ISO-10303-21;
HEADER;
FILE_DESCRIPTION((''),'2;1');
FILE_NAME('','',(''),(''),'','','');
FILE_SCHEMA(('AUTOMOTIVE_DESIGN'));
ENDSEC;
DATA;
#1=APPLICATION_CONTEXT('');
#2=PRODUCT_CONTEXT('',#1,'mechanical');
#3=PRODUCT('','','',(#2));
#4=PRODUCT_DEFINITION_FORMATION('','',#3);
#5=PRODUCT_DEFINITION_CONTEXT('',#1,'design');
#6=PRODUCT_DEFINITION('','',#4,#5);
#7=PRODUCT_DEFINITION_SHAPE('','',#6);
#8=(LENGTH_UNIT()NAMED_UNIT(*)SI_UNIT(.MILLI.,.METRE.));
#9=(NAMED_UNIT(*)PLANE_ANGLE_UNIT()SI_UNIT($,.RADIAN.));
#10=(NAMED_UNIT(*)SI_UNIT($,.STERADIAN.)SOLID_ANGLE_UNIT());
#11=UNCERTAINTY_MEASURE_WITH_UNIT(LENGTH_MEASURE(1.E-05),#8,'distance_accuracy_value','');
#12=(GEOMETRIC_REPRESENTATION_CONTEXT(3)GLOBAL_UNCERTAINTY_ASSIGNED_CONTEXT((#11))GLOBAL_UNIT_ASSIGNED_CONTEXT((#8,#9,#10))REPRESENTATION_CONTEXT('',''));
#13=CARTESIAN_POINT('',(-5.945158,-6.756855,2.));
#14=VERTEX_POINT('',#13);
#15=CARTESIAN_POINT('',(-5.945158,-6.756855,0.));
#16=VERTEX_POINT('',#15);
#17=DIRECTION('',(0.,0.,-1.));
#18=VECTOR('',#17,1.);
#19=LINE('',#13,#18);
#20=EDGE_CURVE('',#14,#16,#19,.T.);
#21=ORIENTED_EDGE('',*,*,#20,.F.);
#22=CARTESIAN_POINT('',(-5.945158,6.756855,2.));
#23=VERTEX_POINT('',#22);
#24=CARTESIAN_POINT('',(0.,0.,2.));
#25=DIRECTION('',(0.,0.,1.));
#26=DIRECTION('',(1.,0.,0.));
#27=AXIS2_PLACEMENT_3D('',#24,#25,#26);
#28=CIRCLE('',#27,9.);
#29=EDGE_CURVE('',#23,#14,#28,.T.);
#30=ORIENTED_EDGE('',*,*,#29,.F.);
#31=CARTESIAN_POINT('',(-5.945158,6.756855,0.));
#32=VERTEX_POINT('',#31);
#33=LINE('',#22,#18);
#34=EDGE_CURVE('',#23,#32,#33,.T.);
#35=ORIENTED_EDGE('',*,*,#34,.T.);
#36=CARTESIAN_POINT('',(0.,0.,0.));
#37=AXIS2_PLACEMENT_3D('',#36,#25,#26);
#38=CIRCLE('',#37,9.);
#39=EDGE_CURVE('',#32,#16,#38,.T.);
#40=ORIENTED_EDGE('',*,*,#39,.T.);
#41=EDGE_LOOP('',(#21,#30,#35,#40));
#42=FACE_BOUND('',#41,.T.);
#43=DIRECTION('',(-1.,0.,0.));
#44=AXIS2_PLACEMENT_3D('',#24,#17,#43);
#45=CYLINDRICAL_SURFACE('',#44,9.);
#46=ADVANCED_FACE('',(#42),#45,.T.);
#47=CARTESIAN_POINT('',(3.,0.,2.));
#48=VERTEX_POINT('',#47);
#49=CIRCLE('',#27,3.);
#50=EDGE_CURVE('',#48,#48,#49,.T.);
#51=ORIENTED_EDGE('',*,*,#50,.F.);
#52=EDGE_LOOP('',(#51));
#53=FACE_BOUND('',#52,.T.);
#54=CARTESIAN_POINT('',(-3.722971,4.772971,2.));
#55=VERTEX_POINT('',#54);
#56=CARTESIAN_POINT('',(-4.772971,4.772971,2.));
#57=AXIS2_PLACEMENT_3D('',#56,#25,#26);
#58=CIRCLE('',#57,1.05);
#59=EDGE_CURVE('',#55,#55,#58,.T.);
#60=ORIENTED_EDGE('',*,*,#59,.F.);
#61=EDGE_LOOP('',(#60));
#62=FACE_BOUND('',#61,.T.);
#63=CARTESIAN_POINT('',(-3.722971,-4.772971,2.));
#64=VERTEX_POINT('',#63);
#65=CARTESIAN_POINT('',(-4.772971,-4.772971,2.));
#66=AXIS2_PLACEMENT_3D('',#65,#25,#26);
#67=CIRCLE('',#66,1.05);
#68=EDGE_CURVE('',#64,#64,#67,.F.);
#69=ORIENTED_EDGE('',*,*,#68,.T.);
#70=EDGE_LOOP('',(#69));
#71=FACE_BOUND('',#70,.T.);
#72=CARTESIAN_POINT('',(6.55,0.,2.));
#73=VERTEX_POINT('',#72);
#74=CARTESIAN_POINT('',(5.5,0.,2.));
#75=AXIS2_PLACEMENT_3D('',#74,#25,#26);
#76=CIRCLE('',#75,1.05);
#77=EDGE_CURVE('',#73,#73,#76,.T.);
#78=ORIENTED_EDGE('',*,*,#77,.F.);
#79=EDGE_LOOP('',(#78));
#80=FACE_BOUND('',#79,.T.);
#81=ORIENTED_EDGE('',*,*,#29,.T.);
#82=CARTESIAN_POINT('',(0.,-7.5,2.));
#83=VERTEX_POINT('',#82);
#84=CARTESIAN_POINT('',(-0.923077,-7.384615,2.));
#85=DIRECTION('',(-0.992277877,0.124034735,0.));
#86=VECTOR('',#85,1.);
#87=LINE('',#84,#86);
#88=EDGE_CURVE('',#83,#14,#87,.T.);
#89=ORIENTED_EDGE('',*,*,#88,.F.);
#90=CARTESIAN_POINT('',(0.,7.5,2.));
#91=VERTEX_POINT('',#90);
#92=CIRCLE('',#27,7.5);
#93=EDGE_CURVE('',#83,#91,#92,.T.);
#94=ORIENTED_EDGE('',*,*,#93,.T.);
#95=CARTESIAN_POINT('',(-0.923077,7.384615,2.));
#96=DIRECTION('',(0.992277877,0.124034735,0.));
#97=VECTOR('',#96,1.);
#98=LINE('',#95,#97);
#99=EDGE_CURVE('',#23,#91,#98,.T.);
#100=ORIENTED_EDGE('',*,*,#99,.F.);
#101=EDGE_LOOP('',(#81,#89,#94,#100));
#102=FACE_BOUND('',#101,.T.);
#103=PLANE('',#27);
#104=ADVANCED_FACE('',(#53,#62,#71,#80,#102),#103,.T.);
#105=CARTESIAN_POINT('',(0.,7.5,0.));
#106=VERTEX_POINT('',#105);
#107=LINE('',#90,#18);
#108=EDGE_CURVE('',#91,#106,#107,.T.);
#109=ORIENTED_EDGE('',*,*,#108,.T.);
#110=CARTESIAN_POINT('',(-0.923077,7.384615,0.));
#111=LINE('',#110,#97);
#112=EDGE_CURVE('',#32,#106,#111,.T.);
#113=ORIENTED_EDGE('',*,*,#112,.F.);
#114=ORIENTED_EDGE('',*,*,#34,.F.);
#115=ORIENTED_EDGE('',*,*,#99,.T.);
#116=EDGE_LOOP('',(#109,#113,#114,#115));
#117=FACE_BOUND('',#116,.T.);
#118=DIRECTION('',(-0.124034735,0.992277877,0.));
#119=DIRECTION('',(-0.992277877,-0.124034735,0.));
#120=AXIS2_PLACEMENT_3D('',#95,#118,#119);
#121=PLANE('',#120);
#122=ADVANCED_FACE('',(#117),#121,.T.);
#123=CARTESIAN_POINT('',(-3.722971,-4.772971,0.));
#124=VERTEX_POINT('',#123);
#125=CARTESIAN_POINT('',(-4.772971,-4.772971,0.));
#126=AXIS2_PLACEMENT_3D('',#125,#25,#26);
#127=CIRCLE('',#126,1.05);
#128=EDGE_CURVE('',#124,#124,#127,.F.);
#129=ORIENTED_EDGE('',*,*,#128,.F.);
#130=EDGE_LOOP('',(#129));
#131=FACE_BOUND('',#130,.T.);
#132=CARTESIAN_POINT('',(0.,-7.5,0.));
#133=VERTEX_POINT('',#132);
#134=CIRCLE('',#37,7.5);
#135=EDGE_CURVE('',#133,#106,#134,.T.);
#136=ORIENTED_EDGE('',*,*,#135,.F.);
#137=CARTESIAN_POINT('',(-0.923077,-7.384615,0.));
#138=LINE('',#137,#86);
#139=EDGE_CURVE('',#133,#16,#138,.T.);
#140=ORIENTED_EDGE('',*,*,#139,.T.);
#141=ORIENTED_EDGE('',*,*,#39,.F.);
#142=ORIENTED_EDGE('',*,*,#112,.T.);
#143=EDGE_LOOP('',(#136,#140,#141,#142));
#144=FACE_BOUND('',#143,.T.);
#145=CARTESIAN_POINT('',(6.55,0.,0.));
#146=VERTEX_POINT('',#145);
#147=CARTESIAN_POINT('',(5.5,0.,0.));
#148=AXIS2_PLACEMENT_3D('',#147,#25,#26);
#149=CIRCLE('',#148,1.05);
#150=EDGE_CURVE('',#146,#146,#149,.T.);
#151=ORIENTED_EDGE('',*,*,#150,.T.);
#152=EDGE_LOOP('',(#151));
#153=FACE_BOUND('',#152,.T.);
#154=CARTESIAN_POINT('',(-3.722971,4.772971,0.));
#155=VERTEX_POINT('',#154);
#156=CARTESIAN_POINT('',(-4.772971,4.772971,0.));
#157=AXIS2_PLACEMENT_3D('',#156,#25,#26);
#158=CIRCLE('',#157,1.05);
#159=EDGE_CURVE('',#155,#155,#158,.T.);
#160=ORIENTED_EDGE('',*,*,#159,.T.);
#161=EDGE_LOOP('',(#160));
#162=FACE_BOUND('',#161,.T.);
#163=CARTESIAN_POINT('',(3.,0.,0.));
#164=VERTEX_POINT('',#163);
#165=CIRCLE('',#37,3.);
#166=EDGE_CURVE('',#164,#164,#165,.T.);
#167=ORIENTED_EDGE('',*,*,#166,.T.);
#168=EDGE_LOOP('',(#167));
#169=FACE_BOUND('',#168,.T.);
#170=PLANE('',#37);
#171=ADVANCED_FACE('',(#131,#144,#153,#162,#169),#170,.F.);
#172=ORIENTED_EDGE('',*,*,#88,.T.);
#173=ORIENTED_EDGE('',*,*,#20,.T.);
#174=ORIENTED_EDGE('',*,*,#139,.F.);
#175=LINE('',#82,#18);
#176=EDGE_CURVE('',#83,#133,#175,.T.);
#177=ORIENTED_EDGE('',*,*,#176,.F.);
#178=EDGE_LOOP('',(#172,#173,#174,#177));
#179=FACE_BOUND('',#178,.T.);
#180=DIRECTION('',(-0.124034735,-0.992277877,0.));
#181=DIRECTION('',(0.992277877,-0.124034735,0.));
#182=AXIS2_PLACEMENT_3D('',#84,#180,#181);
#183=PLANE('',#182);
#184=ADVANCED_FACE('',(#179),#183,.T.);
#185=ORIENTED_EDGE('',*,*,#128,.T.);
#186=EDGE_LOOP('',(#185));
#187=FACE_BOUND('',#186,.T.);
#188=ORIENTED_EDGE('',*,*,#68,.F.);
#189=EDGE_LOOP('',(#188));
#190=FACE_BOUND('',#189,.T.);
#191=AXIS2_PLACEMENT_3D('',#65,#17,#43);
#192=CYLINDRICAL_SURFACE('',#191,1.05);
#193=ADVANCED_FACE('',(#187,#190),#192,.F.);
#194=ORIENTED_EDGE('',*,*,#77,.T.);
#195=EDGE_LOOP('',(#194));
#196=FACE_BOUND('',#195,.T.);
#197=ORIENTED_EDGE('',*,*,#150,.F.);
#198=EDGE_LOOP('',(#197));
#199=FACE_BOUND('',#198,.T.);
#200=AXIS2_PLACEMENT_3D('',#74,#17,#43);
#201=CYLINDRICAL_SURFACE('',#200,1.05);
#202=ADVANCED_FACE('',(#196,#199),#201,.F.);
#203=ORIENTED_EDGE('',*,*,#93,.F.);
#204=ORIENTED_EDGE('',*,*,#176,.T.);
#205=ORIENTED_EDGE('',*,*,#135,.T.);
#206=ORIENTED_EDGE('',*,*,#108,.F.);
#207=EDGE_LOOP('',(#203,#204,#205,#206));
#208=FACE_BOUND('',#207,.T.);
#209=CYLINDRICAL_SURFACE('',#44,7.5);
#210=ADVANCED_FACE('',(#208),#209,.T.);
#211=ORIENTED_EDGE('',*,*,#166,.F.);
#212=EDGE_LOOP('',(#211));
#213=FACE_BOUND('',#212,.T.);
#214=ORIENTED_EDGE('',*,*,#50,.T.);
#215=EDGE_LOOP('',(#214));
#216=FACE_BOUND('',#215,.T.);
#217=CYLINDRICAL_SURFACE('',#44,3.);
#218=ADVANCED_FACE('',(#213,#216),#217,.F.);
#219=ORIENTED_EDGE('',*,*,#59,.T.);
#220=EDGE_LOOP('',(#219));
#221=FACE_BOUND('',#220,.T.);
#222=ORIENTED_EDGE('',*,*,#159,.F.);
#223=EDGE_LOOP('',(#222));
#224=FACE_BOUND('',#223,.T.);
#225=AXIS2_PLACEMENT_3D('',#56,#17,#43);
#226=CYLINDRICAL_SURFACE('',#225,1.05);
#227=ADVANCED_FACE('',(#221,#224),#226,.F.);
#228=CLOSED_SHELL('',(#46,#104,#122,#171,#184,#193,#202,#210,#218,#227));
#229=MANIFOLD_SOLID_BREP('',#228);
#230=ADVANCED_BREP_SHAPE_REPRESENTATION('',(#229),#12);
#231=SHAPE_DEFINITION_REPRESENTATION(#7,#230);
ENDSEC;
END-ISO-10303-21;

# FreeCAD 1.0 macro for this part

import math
import FreeCAD as App
import Part
import Sketcher

V = App.Vector

doc = App.newDocument("Part")
body = doc.addObject("PartDesign::Body", "Body")

sketch1 = body.newObject("Sketcher::SketchObject", "Sketch")
sketch1.AttachmentSupport = (doc.getObject("XY_Plane"), [""])
sketch1.MapMode = "FlatFace"
sketch1.addGeometry([
    Part.ArcOfCircle(Part.Circle(V(0, 0, 0), V(0, 0, 1), 9), math.radians(131.343599), math.radians(228.656401)),
    Part.LineSegment(V(-5.945158, -6.756855, 0), V(0, -7.5, 0)),
    Part.ArcOfCircle(Part.Circle(V(0, 0, 0), V(0, 0, 1), 7.5), math.radians(-90), math.radians(90)),
    Part.LineSegment(V(0, 7.5, 0), V(-5.945158, 6.756855, 0)),
    Part.Circle(V(-4.772971, -4.772971, 0), V(0, 0, 1), 1.05),
    Part.Circle(V(0, 0, 0), V(0, 0, 1), 3),
    Part.Circle(V(5.5, 0, 0), V(0, 0, 1), 1.05),
    Part.Circle(V(-4.772971, 4.772971, 0), V(0, 0, 1), 1.05),
], False)
sketch1.addConstraint([
    Sketcher.Constraint("Coincident", 0, 2, 1, 1),
    Sketcher.Constraint("Coincident", 1, 2, 2, 1),
    Sketcher.Constraint("Coincident", 2, 2, 3, 1),
    Sketcher.Constraint("Coincident", 3, 2, 0, 1),
    Sketcher.Constraint("Coincident", 0, 3, -1, 1),
    Sketcher.Constraint("Coincident", 2, 3, -1, 1),
    Sketcher.Constraint("Coincident", 5, 3, -1, 1),
    Sketcher.Constraint("Equal", 4, 6),
    Sketcher.Constraint("Equal", 6, 7),
    Sketcher.Constraint("Symmetric", 4, 3, 7, 3, -1),
    Sketcher.Constraint("PointOnObject", 6, 3, -1),
    Sketcher.Constraint("PointOnObject", 1, 2, -2),
    Sketcher.Constraint("PointOnObject", 2, 2, -2),
    Sketcher.Constraint("Vertical", 0, 2, 3, 2),
    Sketcher.Constraint("Diameter", 5, 6.0),
    Sketcher.Constraint("Radius", 0, 9.0),
    Sketcher.Constraint("Diameter", 4, 2.1),
    Sketcher.Constraint("Radius", 2, 7.5),
    Sketcher.Constraint("DistanceX", -1, 1, 6, 3, 5.5),
    Sketcher.Constraint("DistanceX", 4, 3, -1, 1, 4.772971),
    Sketcher.Constraint("DistanceY", 4, 3, -1, 1, 4.772971),
    Sketcher.Constraint("DistanceX", 0, 2, -1, 1, 5.945158),
])
pad1 = body.newObject("PartDesign::Pad", "Pad")
pad1.Profile = sketch1
pad1.Length = 2

doc.recompute()
